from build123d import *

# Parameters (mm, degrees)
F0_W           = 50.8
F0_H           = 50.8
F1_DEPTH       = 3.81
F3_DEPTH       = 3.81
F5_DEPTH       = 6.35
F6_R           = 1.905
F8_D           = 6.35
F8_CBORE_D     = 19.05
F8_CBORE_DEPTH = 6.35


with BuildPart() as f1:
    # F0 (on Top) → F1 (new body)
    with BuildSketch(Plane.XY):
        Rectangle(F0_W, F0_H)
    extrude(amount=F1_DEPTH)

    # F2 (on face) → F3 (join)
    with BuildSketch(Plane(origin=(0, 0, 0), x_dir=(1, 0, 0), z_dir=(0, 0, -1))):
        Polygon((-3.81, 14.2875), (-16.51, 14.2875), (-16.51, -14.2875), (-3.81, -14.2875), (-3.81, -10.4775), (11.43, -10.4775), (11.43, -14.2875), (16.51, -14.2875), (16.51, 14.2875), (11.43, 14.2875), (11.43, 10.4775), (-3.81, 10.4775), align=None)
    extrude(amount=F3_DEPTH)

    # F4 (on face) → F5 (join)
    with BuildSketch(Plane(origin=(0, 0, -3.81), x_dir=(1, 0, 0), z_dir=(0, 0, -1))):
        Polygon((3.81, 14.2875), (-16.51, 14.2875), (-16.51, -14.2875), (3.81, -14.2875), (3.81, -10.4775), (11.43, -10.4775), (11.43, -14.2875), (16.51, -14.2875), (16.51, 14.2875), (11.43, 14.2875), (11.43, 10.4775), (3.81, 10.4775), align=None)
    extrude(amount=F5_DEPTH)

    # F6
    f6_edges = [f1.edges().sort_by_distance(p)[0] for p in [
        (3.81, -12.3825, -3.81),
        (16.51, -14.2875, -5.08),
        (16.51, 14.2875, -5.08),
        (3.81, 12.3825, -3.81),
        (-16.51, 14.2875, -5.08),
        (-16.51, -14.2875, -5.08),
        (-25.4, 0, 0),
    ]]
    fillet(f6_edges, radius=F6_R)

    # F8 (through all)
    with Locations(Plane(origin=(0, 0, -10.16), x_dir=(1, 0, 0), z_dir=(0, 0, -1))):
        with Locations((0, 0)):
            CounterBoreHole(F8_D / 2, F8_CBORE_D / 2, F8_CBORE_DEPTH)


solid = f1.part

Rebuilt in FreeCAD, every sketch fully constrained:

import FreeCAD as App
import Part
import Sketcher

V = App.Vector
Q = App.Units.Quantity


def edges_at(feature, points):
    """Names of the edges that pass closest to the given points."""
    edges = feature.Shape.Edges
    near = lambda p: min(range(len(edges)), key=lambda i: edges[i].distToShape(Part.Vertex(*p))[0])
    return sorted({f"Edge{near(p) + 1}" for p in points})


def add_polygon(sketch, points):
    """Adds a closed chain of lines whose ends are joined by coincident constraints."""
    first, n = sketch.GeometryCount, len(points)
    for a, b in zip(points, points[1:] + points[:1]):
        sketch.addGeometry(Part.LineSegment(App.Vector(*a, 0), App.Vector(*b, 0)), False)
    for i in range(n):
        sketch.addConstraint(Sketcher.Constraint("Coincident", first + i, 2, first + (i + 1) % n, 1))

doc = App.newDocument("Part")
params = doc.addObject("Spreadsheet::Sheet", "Params")
for row, (alias, value) in enumerate([
    ("sketch1_width", "2 in"),
    ("pad1_length", "0.15 in"),
    ("sketch2_width", "0.5 in"),
    ("sketch2_width2", "0.6 in"),
    ("sketch2_width3", "0.2 in"),
    ("sketch2_height", "0.15 in"),
    ("sketch2_height2", "1.125 in"),
    ("pad2_length", "0.15 in"),
    ("sketch3_width", "0.8 in"),
    ("sketch3_width2", "0.3 in"),
    ("sketch3_width3", "0.2 in"),
    ("sketch3_height", "0.15 in"),
    ("sketch3_height2", "1.125 in"),
    ("pad3_length", "0.25 in"),
    ("fillet_radius", "0.075 in"),
    ("sketch4_diameter", "0.25 in"),
    ("hole_diameter", "0.25 in"),
    ("hole_cbore_diameter", "0.75 in"),
    ("hole_cbore_depth", "0.25 in"),
], start=1):
    params.set(f"A{row}", alias)
    params.set(f"B{row}", "=" + value)
    params.setAlias(f"B{row}", alias)

body = doc.addObject("PartDesign::Body", "Body")

# Sketch on XY plane
sketch1 = body.newObject("Sketcher::SketchObject", "Sketch")
sketch1.AttachmentSupport = (doc.getObject("XY_Plane"), [""])
sketch1.MapMode = "FlatFace"
add_polygon(sketch1, [(-25, 25), (-25, -25), (25, -25), (25, 25)])  # lines 0-3
sketch1.addConstraint([
    Sketcher.Constraint("Vertical", 0),
    Sketcher.Constraint("Horizontal", 1),
    Sketcher.Constraint("Vertical", 2),
    Sketcher.Constraint("Horizontal", 3),
    Sketcher.Constraint("Symmetric", 0, 2, 2, 2, -1, 1),
    Sketcher.Constraint("Equal", 3, 0),
    Sketcher.Constraint("DistanceX", 1, 1, 1, 2, Q("2 in")),
])
sketch1.setExpression("Constraints[10]", "Params.sketch1_width")
pad1 = body.newObject("PartDesign::Pad", "Pad")
pad1.Profile = sketch1
pad1.setExpression("Length", "Params.pad1_length")

# Sketch on XY plane
sketch2 = body.newObject("Sketcher::SketchObject", "Sketch001")
sketch2.AttachmentSupport = (doc.getObject("XY_Plane"), [""])
sketch2.MapMode = "FlatFace"
add_polygon(sketch2, [(-3.8, -14.3), (-16.5, -14.3), (-16.5, 14.3), (-3.8, 14.3), (-3.8, 10.5), (11.4, 10.5), (11.4, 14.3), (16.5, 14.3), (16.5, -14.3), (11.4, -14.3), (11.4, -10.5), (-3.8, -10.5)])  # lines 0-11
sketch2.addConstraint([
    Sketcher.Constraint("Horizontal", 0),
    Sketcher.Constraint("Vertical", 1),
    Sketcher.Constraint("Horizontal", 2),
    Sketcher.Constraint("Vertical", 3),
    Sketcher.Constraint("Horizontal", 4),
    Sketcher.Constraint("Vertical", 5),
    Sketcher.Constraint("Horizontal", 6),
    Sketcher.Constraint("Vertical", 7),
    Sketcher.Constraint("Horizontal", 8),
    Sketcher.Constraint("Vertical", 9),
    Sketcher.Constraint("Horizontal", 10),
    Sketcher.Constraint("Vertical", 11),
    Sketcher.Constraint("Symmetric", 0, 2, 6, 2, -1, 1),
    Sketcher.Constraint("Symmetric", 5, 2, 8, 2, -1),
    Sketcher.Constraint("Symmetric", 3, 2, 10, 2, -1),
    Sketcher.Constraint("Horizontal", 2, 2, 5, 2),
    Sketcher.Constraint("DistanceX", 0, 2, 0, 1, Q("0.5 in")),
    Sketcher.Constraint("DistanceX", 4, 1, 4, 2, Q("0.6 in")),
    Sketcher.Constraint("DistanceX", 6, 1, 6, 2, Q("0.2 in")),
    Sketcher.Constraint("DistanceY", 3, 2, 3, 1, Q("0.15 in")),
    Sketcher.Constraint("DistanceY", 1, 1, 1, 2, Q("1.125 in")),
])
sketch2.setExpression("Constraints[28]", "Params.sketch2_width")
sketch2.setExpression("Constraints[29]", "Params.sketch2_width2")
sketch2.setExpression("Constraints[30]", "Params.sketch2_width3")
sketch2.setExpression("Constraints[31]", "Params.sketch2_height")
sketch2.setExpression("Constraints[32]", "Params.sketch2_height2")
pad2 = body.newObject("PartDesign::Pad", "Pad001")
pad2.Profile = sketch2
pad2.setExpression("Length", "Params.pad2_length")
pad2.Reversed = True

# Sketch on XY plane
sketch3 = body.newObject("Sketcher::SketchObject", "Sketch002")
sketch3.AttachmentSupport = (doc.getObject("XY_Plane"), [""])
sketch3.MapMode = "FlatFace"
sketch3.AttachmentOffset = App.Placement(V(0, 0, -0.15 * 25.4), App.Rotation())
add_polygon(sketch3, [(3.8, -14.3), (-16.5, -14.3), (-16.5, 14.3), (3.8, 14.3), (3.8, 10.5), (11.4, 10.5), (11.4, 14.3), (16.5, 14.3), (16.5, -14.3), (11.4, -14.3), (11.4, -10.5), (3.8, -10.5)])  # lines 0-11
sketch3.addConstraint([
    Sketcher.Constraint("Horizontal", 0),
    Sketcher.Constraint("Vertical", 1),
    Sketcher.Constraint("Horizontal", 2),
    Sketcher.Constraint("Vertical", 3),
    Sketcher.Constraint("Horizontal", 4),
    Sketcher.Constraint("Vertical", 5),
    Sketcher.Constraint("Horizontal", 6),
    Sketcher.Constraint("Vertical", 7),
    Sketcher.Constraint("Horizontal", 8),
    Sketcher.Constraint("Vertical", 9),
    Sketcher.Constraint("Horizontal", 10),
    Sketcher.Constraint("Vertical", 11),
    Sketcher.Constraint("Symmetric", 0, 2, 6, 2, -1, 1),
    Sketcher.Constraint("Symmetric", 5, 2, 8, 2, -1),
    Sketcher.Constraint("Symmetric", 3, 2, 10, 2, -1),
    Sketcher.Constraint("Horizontal", 2, 2, 5, 2),
    Sketcher.Constraint("DistanceX", 0, 2, 0, 1, Q("0.8 in")),
    Sketcher.Constraint("DistanceX", 4, 1, 4, 2, Q("0.3 in")),
    Sketcher.Constraint("DistanceX", 6, 1, 6, 2, Q("0.2 in")),
    Sketcher.Constraint("DistanceY", 3, 2, 3, 1, Q("0.15 in")),
    Sketcher.Constraint("DistanceY", 1, 1, 1, 2, Q("1.125 in")),
])
sketch3.setExpression("Constraints[28]", "Params.sketch3_width")
sketch3.setExpression("Constraints[29]", "Params.sketch3_width2")
sketch3.setExpression("Constraints[30]", "Params.sketch3_width3")
sketch3.setExpression("Constraints[31]", "Params.sketch3_height")
sketch3.setExpression("Constraints[32]", "Params.sketch3_height2")
pad3 = body.newObject("PartDesign::Pad", "Pad002")
pad3.Profile = sketch3
pad3.setExpression("Length", "Params.pad3_length")
pad3.Reversed = True
doc.recompute()

fillet = body.newObject("PartDesign::Fillet", "Fillet")
fillet.Base = (pad3, edges_at(pad3, [
    (3.81, -12.383, -3.81),
    (16.51, -14.287, -5.08),
    (16.51, 14.287, -5.08),
    (3.81, 12.383, -3.81),
    (-16.51, 14.287, -5.08),
    (-16.51, -14.287, -5.08),
    (-25.4, 0, 0),
]))
fillet.setExpression("Radius", "Params.fillet_radius")

# Sketch on XY plane
sketch4 = body.newObject("Sketcher::SketchObject", "Sketch003")
sketch4.AttachmentSupport = (doc.getObject("XY_Plane"), [""])
sketch4.MapMode = "FlatFace"
sketch4.AttachmentOffset = App.Placement(V(0, 0, -0.4 * 25.4), App.Rotation())
sketch4.addGeometry(Part.Circle(V(0, 0, 0), V(0, 0, 1), 3.2), False)
sketch4.addConstraint([
    Sketcher.Constraint("Coincident", 0, 3, -1, 1),
    Sketcher.Constraint("Diameter", 0, Q("0.25 in")),
])
sketch4.setExpression("Constraints[1]", "Params.sketch4_diameter")
doc.recompute()
hole = body.newObject("PartDesign::Hole", "Hole")
hole.Profile = sketch4
hole.ThreadType = "None"
hole.setExpression("Diameter", "Params.hole_diameter")
hole.DepthType = "ThroughAll"
hole.HoleCutType = "Counterbore"
hole.setExpression("HoleCutDiameter", "Params.hole_cbore_diameter")
hole.setExpression("HoleCutDepth", "Params.hole_cbore_depth")
hole.Reversed = True

doc.recompute()
